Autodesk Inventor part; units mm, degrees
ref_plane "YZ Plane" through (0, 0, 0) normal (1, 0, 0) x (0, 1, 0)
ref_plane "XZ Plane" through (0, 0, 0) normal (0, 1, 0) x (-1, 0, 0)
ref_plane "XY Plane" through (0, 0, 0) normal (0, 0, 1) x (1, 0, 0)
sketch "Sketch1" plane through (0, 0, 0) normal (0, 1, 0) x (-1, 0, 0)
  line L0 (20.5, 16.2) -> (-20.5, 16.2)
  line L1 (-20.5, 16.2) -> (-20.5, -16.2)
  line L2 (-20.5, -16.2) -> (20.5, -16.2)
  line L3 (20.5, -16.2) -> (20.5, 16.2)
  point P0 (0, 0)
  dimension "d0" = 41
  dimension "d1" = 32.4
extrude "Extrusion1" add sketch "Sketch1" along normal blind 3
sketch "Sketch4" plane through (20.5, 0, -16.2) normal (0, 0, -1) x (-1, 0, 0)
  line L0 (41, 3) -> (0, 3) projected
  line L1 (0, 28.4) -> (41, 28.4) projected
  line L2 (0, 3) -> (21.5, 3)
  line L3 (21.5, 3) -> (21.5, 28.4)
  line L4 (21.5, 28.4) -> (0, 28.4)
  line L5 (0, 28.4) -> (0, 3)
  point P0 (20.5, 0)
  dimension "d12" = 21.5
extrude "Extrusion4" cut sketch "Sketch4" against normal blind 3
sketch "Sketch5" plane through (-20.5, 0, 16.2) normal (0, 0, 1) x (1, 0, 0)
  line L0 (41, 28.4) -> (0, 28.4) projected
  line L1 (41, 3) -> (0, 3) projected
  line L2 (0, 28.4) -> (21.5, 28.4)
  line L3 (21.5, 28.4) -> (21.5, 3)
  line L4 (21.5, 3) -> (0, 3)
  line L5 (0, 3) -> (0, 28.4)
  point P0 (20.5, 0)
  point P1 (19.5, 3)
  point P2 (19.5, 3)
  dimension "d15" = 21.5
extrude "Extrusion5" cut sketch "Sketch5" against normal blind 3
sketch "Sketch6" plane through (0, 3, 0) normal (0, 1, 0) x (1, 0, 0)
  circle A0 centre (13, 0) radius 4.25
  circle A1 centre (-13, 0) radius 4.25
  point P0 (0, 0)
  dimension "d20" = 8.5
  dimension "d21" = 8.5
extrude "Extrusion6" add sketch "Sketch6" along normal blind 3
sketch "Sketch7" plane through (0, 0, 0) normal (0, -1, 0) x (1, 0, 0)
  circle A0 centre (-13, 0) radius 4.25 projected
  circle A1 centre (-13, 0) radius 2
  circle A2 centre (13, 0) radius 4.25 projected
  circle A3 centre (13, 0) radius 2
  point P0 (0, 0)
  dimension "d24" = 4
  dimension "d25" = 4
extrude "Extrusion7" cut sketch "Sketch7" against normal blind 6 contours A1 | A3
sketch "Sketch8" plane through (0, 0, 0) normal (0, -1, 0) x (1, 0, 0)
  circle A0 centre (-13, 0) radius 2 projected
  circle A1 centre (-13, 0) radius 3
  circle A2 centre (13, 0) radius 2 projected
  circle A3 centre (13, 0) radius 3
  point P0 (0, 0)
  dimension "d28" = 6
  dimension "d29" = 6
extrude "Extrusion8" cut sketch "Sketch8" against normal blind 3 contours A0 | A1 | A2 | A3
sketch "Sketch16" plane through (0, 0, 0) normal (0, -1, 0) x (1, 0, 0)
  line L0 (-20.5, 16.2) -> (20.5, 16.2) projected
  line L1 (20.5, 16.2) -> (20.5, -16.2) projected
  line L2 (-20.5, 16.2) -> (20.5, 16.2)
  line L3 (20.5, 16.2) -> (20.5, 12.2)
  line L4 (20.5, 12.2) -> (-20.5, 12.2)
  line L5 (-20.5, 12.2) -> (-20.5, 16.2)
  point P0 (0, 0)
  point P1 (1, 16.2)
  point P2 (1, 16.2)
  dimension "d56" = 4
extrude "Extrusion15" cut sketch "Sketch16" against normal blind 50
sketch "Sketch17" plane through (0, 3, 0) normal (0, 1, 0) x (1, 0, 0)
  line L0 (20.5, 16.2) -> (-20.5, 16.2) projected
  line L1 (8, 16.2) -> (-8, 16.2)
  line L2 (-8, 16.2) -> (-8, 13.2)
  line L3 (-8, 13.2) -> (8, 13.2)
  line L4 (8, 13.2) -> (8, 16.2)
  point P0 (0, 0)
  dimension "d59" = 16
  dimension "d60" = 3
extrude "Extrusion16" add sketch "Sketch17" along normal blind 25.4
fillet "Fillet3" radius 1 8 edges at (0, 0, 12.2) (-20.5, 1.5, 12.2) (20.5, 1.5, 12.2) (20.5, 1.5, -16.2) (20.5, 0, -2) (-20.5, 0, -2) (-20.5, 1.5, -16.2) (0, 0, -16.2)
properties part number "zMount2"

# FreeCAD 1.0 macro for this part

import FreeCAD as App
import Part
import Sketcher


def edges_at(feature, points):
    """Names of the edges that pass closest to the given points."""
    edges = feature.Shape.Edges
    near = lambda p: min(range(len(edges)), key=lambda i: edges[i].distToShape(Part.Vertex(*p))[0])
    return sorted({f"Edge{near(p) + 1}" for p in points})


def add_polygon(sketch, points):
    """Adds a closed chain of lines whose ends are joined by coincident constraints."""
    first, n = sketch.GeometryCount, len(points)
    for a, b in zip(points, points[1:] + points[:1]):
        sketch.addGeometry(Part.LineSegment(App.Vector(*a, 0), App.Vector(*b, 0)), False)
    for i in range(n):
        sketch.addConstraint(Sketcher.Constraint("Coincident", first + i, 2, first + (i + 1) % n, 1))

doc = App.newDocument("Part")
params = doc.addObject("Spreadsheet::Sheet", "Params")
for row, (alias, value) in enumerate([
    ("sketch1_width", "41 mm"),
    ("sketch1_height", "32.4 mm"),
    ("pad1_length", "3 mm"),
    ("sketch2_width", "21.5 mm"),
    ("sketch2_height", "25.4 mm"),
    ("pocket1_length", "3 mm"),
    ("sketch3_width", "21.5 mm"),
    ("sketch3_height", "25.4 mm"),
    ("pocket2_length", "3 mm"),
    ("sketch4_diameter", "8.5 mm"),
    ("pad2_length", "3 mm"),
    ("sketch5_diameter", "4 mm"),
    ("pocket3_length", "6 mm"),
    ("sketch6_diameter", "6 mm"),
    ("pocket4_length", "3 mm"),
    ("sketch7_height", "4 mm"),
    ("sketch7_width", "41 mm"),
    ("pocket5_length", "50 mm"),
    ("sketch8_width", "16 mm"),
    ("sketch8_height", "3 mm"),
    ("pad3_length", "25.4 mm"),
    ("fillet_radius", "1 mm"),
], start=1):
    params.set(f"A{row}", alias)
    params.set(f"B{row}", "=" + value)
    params.setAlias(f"B{row}", alias)

body = doc.addObject("PartDesign::Body", "Body")

# Sketch on XZ plane
sketch1 = doc.addObject("Sketcher::SketchObject", "Sketch")
body.addObject(sketch1)
sketch1.AttachmentSupport = (doc.XZ_Plane, [""])
sketch1.MapMode = "FlatFace"
add_polygon(sketch1, [(-20.5, -16.2), (-20.5, 16.2), (20.5, 16.2), (20.5, -16.2)])  # lines 0-3
sketch1.addConstraint(Sketcher.Constraint("Vertical", 0))
sketch1.addConstraint(Sketcher.Constraint("Horizontal", 1))
sketch1.addConstraint(Sketcher.Constraint("Vertical", 2))
sketch1.addConstraint(Sketcher.Constraint("Horizontal", 3))
sketch1.addConstraint(Sketcher.Constraint("Symmetric", 0, 2, 2, 2, -1, 1))
sketch1.addConstraint(Sketcher.Constraint("DistanceX", 1, 1, 1, 2, 41.0))
sketch1.addConstraint(Sketcher.Constraint("DistanceY", 0, 1, 0, 2, 32.4))
sketch1.setExpression("Constraints[9]", "Params.sketch1_width")
sketch1.setExpression("Constraints[10]", "Params.sketch1_height")
pad1 = doc.addObject("PartDesign::Pad", "Pad")
body.addObject(pad1)
pad1.Profile = sketch1
pad1.setExpression("Length", "Params.pad1_length")
pad1.Reversed = True

# Sketch on XY plane
sketch2 = doc.addObject("Sketcher::SketchObject", "Sketch001")
body.addObject(sketch2)
sketch2.AttachmentSupport = (doc.XY_Plane, [""])
sketch2.MapMode = "FlatFace"
sketch2.AttachmentOffset = App.Placement(App.Vector(0, 0, -16.2), App.Rotation())
add_polygon(sketch2, [(20.5, 3), (-1, 3), (-1, 28.4), (20.5, 28.4)])  # lines 0-3
sketch2.addConstraint(Sketcher.Constraint("Horizontal", 0))
sketch2.addConstraint(Sketcher.Constraint("Vertical", 1))
sketch2.addConstraint(Sketcher.Constraint("Horizontal", 2))
sketch2.addConstraint(Sketcher.Constraint("Vertical", 3))
sketch2.addConstraint(Sketcher.Constraint("DistanceX", 0, 2, 0, 1, 21.5))
sketch2.addConstraint(Sketcher.Constraint("DistanceY", 1, 1, 1, 2, 25.4))
sketch2.addConstraint(Sketcher.Constraint("DistanceX", 0, 2, -1, 1, 1.0))
sketch2.addConstraint(Sketcher.Constraint("DistanceY", -1, 1, 0, 2, 3.0))
sketch2.setExpression("Constraints[8]", "Params.sketch2_width")
sketch2.setExpression("Constraints[9]", "Params.sketch2_height")
pocket1 = doc.addObject("PartDesign::Pocket", "Pocket")
body.addObject(pocket1)
pocket1.Profile = sketch2
pocket1.setExpression("Length", "Params.pocket1_length")
pocket1.Reversed = True

# Sketch on XY plane
sketch3 = doc.addObject("Sketcher::SketchObject", "Sketch002")
body.addObject(sketch3)
sketch3.AttachmentSupport = (doc.XY_Plane, [""])
sketch3.MapMode = "FlatFace"
sketch3.AttachmentOffset = App.Placement(App.Vector(0, 0, 16.2), App.Rotation())
add_polygon(sketch3, [(1, 3), (1, 28.4), (-20.5, 28.4), (-20.5, 3)])  # lines 0-3
sketch3.addConstraint(Sketcher.Constraint("Vertical", 0))
sketch3.addConstraint(Sketcher.Constraint("Horizontal", 1))
sketch3.addConstraint(Sketcher.Constraint("Vertical", 2))
sketch3.addConstraint(Sketcher.Constraint("Horizontal", 3))
sketch3.addConstraint(Sketcher.Constraint("DistanceX", 1, 2, 1, 1, 21.5))
sketch3.addConstraint(Sketcher.Constraint("DistanceY", 0, 1, 0, 2, 25.4))
sketch3.addConstraint(Sketcher.Constraint("DistanceX", -1, 1, 0, 2, 1.0))
sketch3.addConstraint(Sketcher.Constraint("DistanceY", -1, 1, 2, 2, 3.0))
sketch3.setExpression("Constraints[8]", "Params.sketch3_width")
sketch3.setExpression("Constraints[9]", "Params.sketch3_height")
pocket2 = doc.addObject("PartDesign::Pocket", "Pocket001")
body.addObject(pocket2)
pocket2.Profile = sketch3
pocket2.setExpression("Length", "Params.pocket2_length")

# Sketch on XZ plane
sketch4 = doc.addObject("Sketcher::SketchObject", "Sketch003")
body.addObject(sketch4)
sketch4.AttachmentSupport = (doc.XZ_Plane, [""])
sketch4.MapMode = "FlatFace"
sketch4.AttachmentOffset = App.Placement(App.Vector(0, 0, -3), App.Rotation())
sketch4.addGeometry(Part.Circle(App.Vector(13, 0, 0), App.Vector(0, 0, 1), 4.25), False)
sketch4.addGeometry(Part.Circle(App.Vector(-13, 0, 0), App.Vector(0, 0, 1), 4.25), False)
sketch4.addConstraint(Sketcher.Constraint("Equal", 0, 1))
sketch4.addConstraint(Sketcher.Constraint("Symmetric", 0, 3, 1, 3, -1, 1))
sketch4.addConstraint(Sketcher.Constraint("PointOnObject", 0, 3, -1))
sketch4.addConstraint(Sketcher.Constraint("Diameter", 0, 8.5))
sketch4.addConstraint(Sketcher.Constraint("DistanceX", -1, 1, 0, 3, 13.0))
sketch4.setExpression("Constraints[3]", "Params.sketch4_diameter")
pad2 = doc.addObject("PartDesign::Pad", "Pad001")
body.addObject(pad2)
pad2.Profile = sketch4
pad2.setExpression("Length", "Params.pad2_length")
pad2.Reversed = True

# Sketch on XZ plane
sketch5 = doc.addObject("Sketcher::SketchObject", "Sketch004")
body.addObject(sketch5)
sketch5.AttachmentSupport = (doc.XZ_Plane, [""])
sketch5.MapMode = "FlatFace"
sketch5.addGeometry(Part.Circle(App.Vector(-13, 0, 0), App.Vector(0, 0, 1), 2), False)
sketch5.addGeometry(Part.Circle(App.Vector(13, 0, 0), App.Vector(0, 0, 1), 2), False)
sketch5.addConstraint(Sketcher.Constraint("Equal", 0, 1))
sketch5.addConstraint(Sketcher.Constraint("Symmetric", 0, 3, 1, 3, -1, 1))
sketch5.addConstraint(Sketcher.Constraint("PointOnObject", 0, 3, -1))
sketch5.addConstraint(Sketcher.Constraint("Diameter", 0, 4.0))
sketch5.addConstraint(Sketcher.Constraint("DistanceX", 0, 3, -1, 1, 13.0))
sketch5.setExpression("Constraints[3]", "Params.sketch5_diameter")
pocket3 = doc.addObject("PartDesign::Pocket", "Pocket002")
body.addObject(pocket3)
pocket3.Profile = sketch5
pocket3.setExpression("Length", "Params.pocket3_length")

# Sketch on XZ plane
sketch6 = doc.addObject("Sketcher::SketchObject", "Sketch005")
body.addObject(sketch6)
sketch6.AttachmentSupport = (doc.XZ_Plane, [""])
sketch6.MapMode = "FlatFace"
sketch6.addGeometry(Part.Circle(App.Vector(-13, 0, 0), App.Vector(0, 0, 1), 3), False)
sketch6.addGeometry(Part.Circle(App.Vector(13, 0, 0), App.Vector(0, 0, 1), 3), False)
sketch6.addConstraint(Sketcher.Constraint("Equal", 0, 1))
sketch6.addConstraint(Sketcher.Constraint("Symmetric", 0, 3, 1, 3, -1, 1))
sketch6.addConstraint(Sketcher.Constraint("PointOnObject", 0, 3, -1))
sketch6.addConstraint(Sketcher.Constraint("Diameter", 0, 6.0))
sketch6.addConstraint(Sketcher.Constraint("DistanceX", 0, 3, -1, 1, 13.0))
sketch6.setExpression("Constraints[3]", "Params.sketch6_diameter")
pocket4 = doc.addObject("PartDesign::Pocket", "Pocket003")
body.addObject(pocket4)
pocket4.Profile = sketch6
pocket4.setExpression("Length", "Params.pocket4_length")

# Sketch on XZ plane
sketch7 = doc.addObject("Sketcher::SketchObject", "Sketch006")
body.addObject(sketch7)
sketch7.AttachmentSupport = (doc.XZ_Plane, [""])
sketch7.MapMode = "FlatFace"
add_polygon(sketch7, [(20.5, 16.2), (-20.5, 16.2), (-20.5, 12.2), (20.5, 12.2)])  # lines 0-3
sketch7.addConstraint(Sketcher.Constraint("Horizontal", 0))
sketch7.addConstraint(Sketcher.Constraint("Vertical", 1))
sketch7.addConstraint(Sketcher.Constraint("Horizontal", 2))
sketch7.addConstraint(Sketcher.Constraint("Vertical", 3))
sketch7.addConstraint(Sketcher.Constraint("DistanceY", 1, 2, 1, 1, 4.0))
sketch7.addConstraint(Sketcher.Constraint("DistanceX", 0, 2, 0, 1, 41.0))
sketch7.addConstraint(Sketcher.Constraint("DistanceX", 0, 2, -1, 1, 20.5))
sketch7.addConstraint(Sketcher.Constraint("DistanceY", -1, 1, 0, 2, 16.2))
sketch7.setExpression("Constraints[8]", "Params.sketch7_height")
sketch7.setExpression("Constraints[9]", "Params.sketch7_width")
pocket5 = doc.addObject("PartDesign::Pocket", "Pocket004")
body.addObject(pocket5)
pocket5.Profile = sketch7
pocket5.setExpression("Length", "Params.pocket5_length")

# Sketch on XZ plane
sketch8 = doc.addObject("Sketcher::SketchObject", "Sketch007")
body.addObject(sketch8)
sketch8.AttachmentSupport = (doc.XZ_Plane, [""])
sketch8.MapMode = "FlatFace"
sketch8.AttachmentOffset = App.Placement(App.Vector(0, 0, -3), App.Rotation())
add_polygon(sketch8, [(8, -13.2), (8, -16.2), (-8, -16.2), (-8, -13.2)])  # lines 0-3
sketch8.addConstraint(Sketcher.Constraint("Vertical", 0))
sketch8.addConstraint(Sketcher.Constraint("Horizontal", 1))
sketch8.addConstraint(Sketcher.Constraint("Vertical", 2))
sketch8.addConstraint(Sketcher.Constraint("Horizontal", 3))
sketch8.addConstraint(Sketcher.Constraint("DistanceX", 1, 2, 1, 1, 16.0))
sketch8.addConstraint(Sketcher.Constraint("DistanceY", 0, 2, 0, 1, 3.0))
sketch8.addConstraint(Sketcher.Constraint("DistanceX", -1, 1, 0, 2, 8.0))
sketch8.addConstraint(Sketcher.Constraint("DistanceY", 0, 2, -1, 1, 16.2))
sketch8.setExpression("Constraints[8]", "Params.sketch8_width")
sketch8.setExpression("Constraints[9]", "Params.sketch8_height")
pad3 = doc.addObject("PartDesign::Pad", "Pad002")
body.addObject(pad3)
pad3.Profile = sketch8
pad3.setExpression("Length", "Params.pad3_length")
pad3.Reversed = True
doc.recompute()

fillet = doc.addObject("PartDesign::Fillet", "Fillet")
body.addObject(fillet)
fillet.Base = (pad3, edges_at(pad3, [
    (0, 0, 12.2),
    (-20.5, 1.5, 12.2),
    (20.5, 1.5, 12.2),
    (20.5, 1.5, -16.2),
    (20.5, 0, -2),
    (-20.5, 0, -2),
    (-20.5, 1.5, -16.2),
    (0, 0, -16.2),
]))
fillet.setExpression("Radius", "Params.fillet_radius")

doc.recompute()
